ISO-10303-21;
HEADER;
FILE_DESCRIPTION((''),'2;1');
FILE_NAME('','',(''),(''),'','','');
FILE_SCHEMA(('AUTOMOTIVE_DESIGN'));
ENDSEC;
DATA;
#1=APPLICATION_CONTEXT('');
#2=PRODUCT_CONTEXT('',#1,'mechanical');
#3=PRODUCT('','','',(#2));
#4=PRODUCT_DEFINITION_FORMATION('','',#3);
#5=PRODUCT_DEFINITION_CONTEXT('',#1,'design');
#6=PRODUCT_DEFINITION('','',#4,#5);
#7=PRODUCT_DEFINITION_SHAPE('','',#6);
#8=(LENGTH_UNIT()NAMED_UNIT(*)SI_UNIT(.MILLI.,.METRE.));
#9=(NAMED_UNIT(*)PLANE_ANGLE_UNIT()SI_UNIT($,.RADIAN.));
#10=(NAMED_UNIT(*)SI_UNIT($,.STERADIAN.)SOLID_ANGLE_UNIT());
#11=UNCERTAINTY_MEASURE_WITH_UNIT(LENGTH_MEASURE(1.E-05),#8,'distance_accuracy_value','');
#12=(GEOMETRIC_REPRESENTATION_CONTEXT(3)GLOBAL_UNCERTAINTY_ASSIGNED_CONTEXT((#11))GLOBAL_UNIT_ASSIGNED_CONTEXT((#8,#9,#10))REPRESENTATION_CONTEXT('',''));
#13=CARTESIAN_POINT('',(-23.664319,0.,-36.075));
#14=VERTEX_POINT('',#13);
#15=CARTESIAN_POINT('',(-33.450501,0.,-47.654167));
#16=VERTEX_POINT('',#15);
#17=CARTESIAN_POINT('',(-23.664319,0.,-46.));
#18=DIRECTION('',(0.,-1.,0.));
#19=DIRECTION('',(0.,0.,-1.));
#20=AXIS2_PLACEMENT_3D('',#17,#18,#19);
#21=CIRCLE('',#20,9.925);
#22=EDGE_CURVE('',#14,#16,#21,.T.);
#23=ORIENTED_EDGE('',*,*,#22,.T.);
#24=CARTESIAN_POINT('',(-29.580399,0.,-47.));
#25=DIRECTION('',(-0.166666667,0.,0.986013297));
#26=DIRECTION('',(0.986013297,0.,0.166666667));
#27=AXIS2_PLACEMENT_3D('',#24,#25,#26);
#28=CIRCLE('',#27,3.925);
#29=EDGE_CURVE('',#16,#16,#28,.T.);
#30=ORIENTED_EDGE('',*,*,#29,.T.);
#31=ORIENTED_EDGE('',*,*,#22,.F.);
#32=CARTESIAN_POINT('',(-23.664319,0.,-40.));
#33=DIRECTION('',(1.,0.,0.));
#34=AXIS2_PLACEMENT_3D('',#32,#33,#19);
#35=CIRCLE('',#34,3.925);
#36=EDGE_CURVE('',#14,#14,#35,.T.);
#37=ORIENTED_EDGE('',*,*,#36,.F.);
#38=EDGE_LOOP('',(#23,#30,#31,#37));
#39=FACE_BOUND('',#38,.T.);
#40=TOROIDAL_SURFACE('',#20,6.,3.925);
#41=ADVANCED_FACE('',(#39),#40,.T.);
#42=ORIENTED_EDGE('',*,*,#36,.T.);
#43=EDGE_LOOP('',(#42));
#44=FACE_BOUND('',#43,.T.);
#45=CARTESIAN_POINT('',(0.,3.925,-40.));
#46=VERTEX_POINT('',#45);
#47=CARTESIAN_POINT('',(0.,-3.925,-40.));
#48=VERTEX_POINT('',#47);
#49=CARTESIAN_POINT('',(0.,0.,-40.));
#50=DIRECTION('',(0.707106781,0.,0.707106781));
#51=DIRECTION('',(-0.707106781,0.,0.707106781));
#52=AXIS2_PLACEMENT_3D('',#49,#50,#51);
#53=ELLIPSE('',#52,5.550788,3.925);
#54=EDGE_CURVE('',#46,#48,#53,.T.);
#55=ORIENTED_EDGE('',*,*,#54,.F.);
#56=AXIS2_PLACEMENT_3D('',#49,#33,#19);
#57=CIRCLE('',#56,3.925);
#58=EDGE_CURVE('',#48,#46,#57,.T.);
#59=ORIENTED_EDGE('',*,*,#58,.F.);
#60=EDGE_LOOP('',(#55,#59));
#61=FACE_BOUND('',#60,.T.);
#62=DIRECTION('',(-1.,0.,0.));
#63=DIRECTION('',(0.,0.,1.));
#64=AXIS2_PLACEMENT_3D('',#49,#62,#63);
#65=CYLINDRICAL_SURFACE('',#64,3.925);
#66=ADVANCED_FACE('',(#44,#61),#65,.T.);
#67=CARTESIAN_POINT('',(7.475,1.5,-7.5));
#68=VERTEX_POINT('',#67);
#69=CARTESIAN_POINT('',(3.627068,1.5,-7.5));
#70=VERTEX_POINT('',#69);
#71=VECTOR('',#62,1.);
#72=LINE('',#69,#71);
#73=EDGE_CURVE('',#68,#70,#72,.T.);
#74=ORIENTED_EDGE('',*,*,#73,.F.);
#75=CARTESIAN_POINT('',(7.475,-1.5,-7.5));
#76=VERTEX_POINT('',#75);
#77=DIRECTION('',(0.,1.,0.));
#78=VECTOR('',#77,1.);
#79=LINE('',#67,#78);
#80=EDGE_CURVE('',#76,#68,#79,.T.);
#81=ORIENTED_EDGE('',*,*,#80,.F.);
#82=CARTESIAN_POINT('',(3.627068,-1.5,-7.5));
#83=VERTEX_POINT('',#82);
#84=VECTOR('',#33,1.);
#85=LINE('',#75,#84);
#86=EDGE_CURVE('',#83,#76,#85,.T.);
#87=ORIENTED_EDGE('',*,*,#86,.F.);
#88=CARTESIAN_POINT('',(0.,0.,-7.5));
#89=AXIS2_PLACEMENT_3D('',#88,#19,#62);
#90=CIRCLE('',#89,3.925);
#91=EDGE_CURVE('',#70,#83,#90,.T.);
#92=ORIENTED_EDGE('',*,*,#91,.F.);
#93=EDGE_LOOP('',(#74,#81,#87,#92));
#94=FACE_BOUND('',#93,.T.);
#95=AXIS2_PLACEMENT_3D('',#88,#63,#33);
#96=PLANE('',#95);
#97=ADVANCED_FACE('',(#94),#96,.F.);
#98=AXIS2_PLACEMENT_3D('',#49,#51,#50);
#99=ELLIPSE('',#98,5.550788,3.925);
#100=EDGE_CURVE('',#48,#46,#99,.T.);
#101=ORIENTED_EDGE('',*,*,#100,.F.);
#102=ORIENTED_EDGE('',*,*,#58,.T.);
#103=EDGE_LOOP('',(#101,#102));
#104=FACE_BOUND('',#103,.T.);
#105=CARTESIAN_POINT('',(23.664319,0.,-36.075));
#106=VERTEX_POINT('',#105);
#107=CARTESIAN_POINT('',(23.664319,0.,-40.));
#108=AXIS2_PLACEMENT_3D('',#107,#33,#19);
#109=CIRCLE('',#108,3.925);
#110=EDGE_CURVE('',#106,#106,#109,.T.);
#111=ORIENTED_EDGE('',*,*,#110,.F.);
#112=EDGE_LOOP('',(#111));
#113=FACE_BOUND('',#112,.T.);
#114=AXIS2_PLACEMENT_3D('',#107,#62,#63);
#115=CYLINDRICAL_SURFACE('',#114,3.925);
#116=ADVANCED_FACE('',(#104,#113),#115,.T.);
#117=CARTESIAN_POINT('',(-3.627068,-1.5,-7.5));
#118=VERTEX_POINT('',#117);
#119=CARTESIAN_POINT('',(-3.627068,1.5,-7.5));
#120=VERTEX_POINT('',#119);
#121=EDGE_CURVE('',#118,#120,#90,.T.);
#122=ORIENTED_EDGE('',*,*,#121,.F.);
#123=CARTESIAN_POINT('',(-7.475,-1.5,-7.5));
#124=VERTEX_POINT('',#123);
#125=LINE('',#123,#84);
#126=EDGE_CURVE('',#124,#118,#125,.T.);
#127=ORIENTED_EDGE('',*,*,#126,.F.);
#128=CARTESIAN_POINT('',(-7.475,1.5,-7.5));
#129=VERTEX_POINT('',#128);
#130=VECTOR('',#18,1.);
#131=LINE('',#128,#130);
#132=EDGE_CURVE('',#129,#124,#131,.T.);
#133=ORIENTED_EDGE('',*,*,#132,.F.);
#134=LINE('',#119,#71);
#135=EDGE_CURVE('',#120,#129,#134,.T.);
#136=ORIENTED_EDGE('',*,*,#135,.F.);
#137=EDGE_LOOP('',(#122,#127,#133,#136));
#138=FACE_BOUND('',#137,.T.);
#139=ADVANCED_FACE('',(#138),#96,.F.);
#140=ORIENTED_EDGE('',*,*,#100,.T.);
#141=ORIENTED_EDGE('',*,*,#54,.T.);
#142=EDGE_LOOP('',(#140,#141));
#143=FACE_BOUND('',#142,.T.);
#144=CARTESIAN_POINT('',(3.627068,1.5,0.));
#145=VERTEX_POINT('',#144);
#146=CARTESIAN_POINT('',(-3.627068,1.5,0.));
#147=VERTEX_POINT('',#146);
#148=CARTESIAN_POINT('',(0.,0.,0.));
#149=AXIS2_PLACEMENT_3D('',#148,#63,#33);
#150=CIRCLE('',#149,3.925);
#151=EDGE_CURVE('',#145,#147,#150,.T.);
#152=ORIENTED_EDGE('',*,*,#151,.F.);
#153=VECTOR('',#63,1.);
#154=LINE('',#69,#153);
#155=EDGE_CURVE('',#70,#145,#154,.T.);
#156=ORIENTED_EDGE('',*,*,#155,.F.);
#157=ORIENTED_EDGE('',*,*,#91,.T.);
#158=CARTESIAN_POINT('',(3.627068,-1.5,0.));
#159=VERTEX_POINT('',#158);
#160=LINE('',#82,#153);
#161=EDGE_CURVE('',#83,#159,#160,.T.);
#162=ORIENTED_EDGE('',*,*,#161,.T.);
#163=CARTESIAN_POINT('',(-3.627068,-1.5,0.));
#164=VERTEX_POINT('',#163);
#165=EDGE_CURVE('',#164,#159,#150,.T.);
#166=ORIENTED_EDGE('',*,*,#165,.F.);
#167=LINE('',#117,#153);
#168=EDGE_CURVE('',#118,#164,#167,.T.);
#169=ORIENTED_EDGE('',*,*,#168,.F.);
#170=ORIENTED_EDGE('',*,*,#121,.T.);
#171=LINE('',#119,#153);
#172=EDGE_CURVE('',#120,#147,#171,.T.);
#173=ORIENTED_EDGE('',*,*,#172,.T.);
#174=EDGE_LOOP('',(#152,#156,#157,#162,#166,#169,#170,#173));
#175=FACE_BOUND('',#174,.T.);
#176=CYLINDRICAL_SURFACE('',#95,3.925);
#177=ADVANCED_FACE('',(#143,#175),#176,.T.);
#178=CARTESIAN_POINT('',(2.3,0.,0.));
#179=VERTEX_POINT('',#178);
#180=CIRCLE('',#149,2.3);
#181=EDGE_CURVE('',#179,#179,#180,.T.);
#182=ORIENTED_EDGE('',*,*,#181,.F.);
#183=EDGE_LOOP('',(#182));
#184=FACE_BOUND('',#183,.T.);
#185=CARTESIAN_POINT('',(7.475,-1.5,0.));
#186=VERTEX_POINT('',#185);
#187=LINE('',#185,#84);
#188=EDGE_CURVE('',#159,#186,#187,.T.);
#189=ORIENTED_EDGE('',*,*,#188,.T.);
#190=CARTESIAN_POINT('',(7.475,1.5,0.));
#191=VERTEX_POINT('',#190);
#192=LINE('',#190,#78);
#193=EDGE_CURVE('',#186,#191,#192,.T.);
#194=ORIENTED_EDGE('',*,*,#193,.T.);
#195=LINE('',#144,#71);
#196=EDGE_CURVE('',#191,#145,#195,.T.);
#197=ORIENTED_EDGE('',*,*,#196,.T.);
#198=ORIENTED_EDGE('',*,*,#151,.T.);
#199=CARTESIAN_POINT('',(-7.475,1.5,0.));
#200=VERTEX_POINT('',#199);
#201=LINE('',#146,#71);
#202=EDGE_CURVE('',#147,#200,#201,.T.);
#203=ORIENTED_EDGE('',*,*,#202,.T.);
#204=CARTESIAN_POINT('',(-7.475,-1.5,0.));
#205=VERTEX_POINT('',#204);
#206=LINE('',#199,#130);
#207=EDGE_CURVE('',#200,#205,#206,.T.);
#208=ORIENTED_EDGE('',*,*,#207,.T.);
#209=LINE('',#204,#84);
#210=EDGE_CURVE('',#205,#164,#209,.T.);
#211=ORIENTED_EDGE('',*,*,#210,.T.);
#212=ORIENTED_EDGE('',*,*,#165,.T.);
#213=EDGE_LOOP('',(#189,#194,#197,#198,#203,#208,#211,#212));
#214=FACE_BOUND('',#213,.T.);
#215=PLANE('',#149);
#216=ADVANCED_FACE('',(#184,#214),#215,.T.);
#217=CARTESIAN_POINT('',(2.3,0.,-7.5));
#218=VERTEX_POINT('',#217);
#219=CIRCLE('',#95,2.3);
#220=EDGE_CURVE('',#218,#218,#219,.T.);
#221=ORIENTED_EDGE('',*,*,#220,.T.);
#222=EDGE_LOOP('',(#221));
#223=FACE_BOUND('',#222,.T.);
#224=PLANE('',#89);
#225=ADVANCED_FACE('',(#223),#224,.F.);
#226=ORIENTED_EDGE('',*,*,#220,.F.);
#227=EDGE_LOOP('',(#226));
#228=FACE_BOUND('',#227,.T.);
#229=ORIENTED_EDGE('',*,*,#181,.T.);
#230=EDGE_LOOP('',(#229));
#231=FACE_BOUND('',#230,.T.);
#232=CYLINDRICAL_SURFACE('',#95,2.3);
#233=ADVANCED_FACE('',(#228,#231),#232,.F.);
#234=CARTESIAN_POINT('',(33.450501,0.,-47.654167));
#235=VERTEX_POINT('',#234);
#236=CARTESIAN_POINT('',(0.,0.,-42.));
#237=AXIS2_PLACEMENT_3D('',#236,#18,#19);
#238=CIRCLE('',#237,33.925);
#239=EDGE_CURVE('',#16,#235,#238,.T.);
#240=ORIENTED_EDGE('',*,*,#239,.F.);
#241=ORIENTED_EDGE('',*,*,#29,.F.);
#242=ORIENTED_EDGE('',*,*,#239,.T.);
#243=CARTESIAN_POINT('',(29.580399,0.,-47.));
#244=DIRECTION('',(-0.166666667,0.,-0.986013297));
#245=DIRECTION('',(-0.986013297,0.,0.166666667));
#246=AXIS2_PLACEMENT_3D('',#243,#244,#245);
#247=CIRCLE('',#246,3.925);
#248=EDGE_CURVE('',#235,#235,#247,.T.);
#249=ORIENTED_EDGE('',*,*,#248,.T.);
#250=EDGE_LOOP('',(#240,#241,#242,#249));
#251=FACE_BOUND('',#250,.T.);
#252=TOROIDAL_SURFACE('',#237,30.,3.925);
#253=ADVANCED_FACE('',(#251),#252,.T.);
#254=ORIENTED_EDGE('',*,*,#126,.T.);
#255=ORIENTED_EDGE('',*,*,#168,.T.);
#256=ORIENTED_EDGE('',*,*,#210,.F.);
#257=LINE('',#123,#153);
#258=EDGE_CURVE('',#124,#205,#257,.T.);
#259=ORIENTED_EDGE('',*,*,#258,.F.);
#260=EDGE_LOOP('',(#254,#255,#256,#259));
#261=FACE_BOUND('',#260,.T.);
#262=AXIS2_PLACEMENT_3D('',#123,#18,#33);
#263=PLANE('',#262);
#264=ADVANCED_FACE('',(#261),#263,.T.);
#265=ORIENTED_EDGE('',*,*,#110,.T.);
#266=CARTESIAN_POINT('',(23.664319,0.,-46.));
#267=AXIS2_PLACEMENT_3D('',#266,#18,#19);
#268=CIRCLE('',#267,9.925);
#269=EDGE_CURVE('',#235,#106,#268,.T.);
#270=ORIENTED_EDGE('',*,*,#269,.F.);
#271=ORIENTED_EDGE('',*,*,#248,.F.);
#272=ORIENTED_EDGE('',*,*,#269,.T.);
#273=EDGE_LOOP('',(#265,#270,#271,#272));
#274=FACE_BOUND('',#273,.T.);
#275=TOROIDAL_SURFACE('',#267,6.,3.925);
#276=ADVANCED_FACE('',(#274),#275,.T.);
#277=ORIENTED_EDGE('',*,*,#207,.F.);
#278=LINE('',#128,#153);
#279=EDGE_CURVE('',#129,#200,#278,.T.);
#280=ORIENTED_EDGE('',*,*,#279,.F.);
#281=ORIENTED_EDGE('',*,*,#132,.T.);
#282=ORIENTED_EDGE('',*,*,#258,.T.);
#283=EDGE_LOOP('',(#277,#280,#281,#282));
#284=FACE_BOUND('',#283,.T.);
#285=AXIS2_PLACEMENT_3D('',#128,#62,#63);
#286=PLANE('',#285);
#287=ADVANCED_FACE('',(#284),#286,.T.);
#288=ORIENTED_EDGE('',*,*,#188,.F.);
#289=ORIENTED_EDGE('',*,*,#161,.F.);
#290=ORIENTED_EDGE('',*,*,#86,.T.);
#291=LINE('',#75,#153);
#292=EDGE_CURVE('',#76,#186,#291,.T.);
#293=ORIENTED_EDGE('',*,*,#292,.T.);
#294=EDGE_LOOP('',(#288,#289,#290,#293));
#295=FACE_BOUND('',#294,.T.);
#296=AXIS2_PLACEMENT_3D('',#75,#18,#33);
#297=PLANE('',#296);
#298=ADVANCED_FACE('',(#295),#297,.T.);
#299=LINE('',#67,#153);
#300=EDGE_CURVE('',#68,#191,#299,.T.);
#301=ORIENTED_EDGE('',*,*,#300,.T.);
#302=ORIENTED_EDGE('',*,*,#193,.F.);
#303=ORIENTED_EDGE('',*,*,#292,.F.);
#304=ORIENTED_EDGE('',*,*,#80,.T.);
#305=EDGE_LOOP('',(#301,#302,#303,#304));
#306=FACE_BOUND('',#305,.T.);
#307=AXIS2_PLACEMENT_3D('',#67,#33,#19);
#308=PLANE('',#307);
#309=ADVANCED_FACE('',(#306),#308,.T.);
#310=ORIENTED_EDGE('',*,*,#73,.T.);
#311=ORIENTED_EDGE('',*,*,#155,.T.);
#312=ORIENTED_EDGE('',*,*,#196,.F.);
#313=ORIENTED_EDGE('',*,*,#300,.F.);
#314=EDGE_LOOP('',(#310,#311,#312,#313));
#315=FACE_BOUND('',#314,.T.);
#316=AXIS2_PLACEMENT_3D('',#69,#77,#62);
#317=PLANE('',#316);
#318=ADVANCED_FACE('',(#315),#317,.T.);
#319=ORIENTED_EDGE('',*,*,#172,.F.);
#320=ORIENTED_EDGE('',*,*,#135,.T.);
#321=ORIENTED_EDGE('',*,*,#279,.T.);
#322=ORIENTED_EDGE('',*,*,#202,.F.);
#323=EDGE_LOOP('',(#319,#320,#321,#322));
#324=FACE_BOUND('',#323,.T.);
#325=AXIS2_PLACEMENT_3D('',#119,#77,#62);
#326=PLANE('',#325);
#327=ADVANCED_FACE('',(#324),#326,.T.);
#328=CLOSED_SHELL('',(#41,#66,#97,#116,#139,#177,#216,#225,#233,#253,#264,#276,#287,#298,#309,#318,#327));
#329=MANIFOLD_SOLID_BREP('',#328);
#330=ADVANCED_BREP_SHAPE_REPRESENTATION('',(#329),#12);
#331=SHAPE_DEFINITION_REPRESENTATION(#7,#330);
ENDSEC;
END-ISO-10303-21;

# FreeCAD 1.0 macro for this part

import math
import FreeCAD as App
import Part
import Sketcher

V = App.Vector
Q = App.Units.Quantity

doc = App.newDocument("Part")
params = doc.addObject("Spreadsheet::Sheet", "Params")
for row, (alias, value) in enumerate([
    ("sketch1_diameter", "4.6 mm"),
    ("sketch1_height", "3 mm"),
    ("pad1_length", "7.5 mm"),
    ("sketch2_diameter", "7.85 mm"),
    ("pad2_length", "32.5 mm"),
    ("sketch3_diameter", "7.85 mm"),
    ("sketch4_radius", "6 mm"),
    ("sketch4_radius2", "30 mm"),
], start=1):
    params.set(f"A{row}", alias)
    params.set(f"B{row}", "=" + value)
    params.setAlias(f"B{row}", alias)

body = doc.addObject("PartDesign::Body", "Body")

sketch1 = body.newObject("Sketcher::SketchObject", "Sketch")
sketch1.AttachmentSupport = (doc.getObject("XY_Plane"), [""])
sketch1.MapMode = "FlatFace"
sketch1.addGeometry(Part.LineSegment(V(7.5, 1.5, 0), V(3.6, 1.5, 0)), False)
sketch1.addGeometry(Part.ArcOfCircle(Part.Circle(V(0, 0, 0), V(0, 0, 1), 3.9), math.radians(22), math.radians(158)), False)
sketch1.addGeometry(Part.LineSegment(V(-3.6, 1.5, 0), V(-7.5, 1.5, 0)), False)
sketch1.addGeometry(Part.LineSegment(V(-7.5, 1.5, 0), V(-7.5, -1.5, 0)), False)
sketch1.addGeometry(Part.LineSegment(V(-7.5, -1.5, 0), V(-3.6, -1.5, 0)), False)
sketch1.addGeometry(Part.ArcOfCircle(Part.Circle(V(0, 0, 0), V(0, 0, 1), 3.9), math.radians(-158), math.radians(-22)), False)
sketch1.addGeometry(Part.LineSegment(V(3.6, -1.5, 0), V(7.5, -1.5, 0)), False)
sketch1.addGeometry(Part.LineSegment(V(7.5, -1.5, 0), V(7.5, 1.5, 0)), False)
sketch1.addGeometry(Part.Circle(V(0, 0, 0), V(0, 0, 1), 2.3), False)
sketch1.addConstraint(Sketcher.Constraint("Coincident", 0, 2, 1, 1))
sketch1.addConstraint(Sketcher.Constraint("Coincident", 1, 2, 2, 1))
sketch1.addConstraint(Sketcher.Constraint("Coincident", 2, 2, 3, 1))
sketch1.addConstraint(Sketcher.Constraint("Coincident", 3, 2, 4, 1))
sketch1.addConstraint(Sketcher.Constraint("Coincident", 4, 2, 5, 1))
sketch1.addConstraint(Sketcher.Constraint("Coincident", 5, 2, 6, 1))
sketch1.addConstraint(Sketcher.Constraint("Coincident", 6, 2, 7, 1))
sketch1.addConstraint(Sketcher.Constraint("Coincident", 7, 2, 0, 1))
sketch1.addConstraint(Sketcher.Constraint("Horizontal", 0))
sketch1.addConstraint(Sketcher.Constraint("Horizontal", 2))
sketch1.addConstraint(Sketcher.Constraint("Vertical", 3))
sketch1.addConstraint(Sketcher.Constraint("Horizontal", 4))
sketch1.addConstraint(Sketcher.Constraint("Horizontal", 6))
sketch1.addConstraint(Sketcher.Constraint("Vertical", 7))
sketch1.addConstraint(Sketcher.Constraint("Coincident", 1, 3, -1, 1))
sketch1.addConstraint(Sketcher.Constraint("Coincident", 5, 3, -1, 1))
sketch1.addConstraint(Sketcher.Constraint("Coincident", 8, 3, -1, 1))
sketch1.addConstraint(Sketcher.Constraint("Equal", 1, 5))
sketch1.addConstraint(Sketcher.Constraint("Symmetric", 2, 2, 6, 2, -1, 1))
sketch1.addConstraint(Sketcher.Constraint("Horizontal", 0, 2, 1, 2))
sketch1.addConstraint(Sketcher.Constraint("Horizontal", 4, 2, 5, 2))
sketch1.addConstraint(Sketcher.Constraint("Diameter", 8, Q("4.6 mm")))
sketch1.addConstraint(Sketcher.Constraint("DistanceY", 3, 2, 3, 1, Q("3 mm")))
sketch1.addConstraint(Sketcher.Constraint("Radius", 1, Q("3.925 mm")))
sketch1.addConstraint(Sketcher.Constraint("DistanceX", 2, 2, -1, 1, Q("7.475 mm")))
sketch1.setExpression("Constraints[21]", "Params.sketch1_diameter")
sketch1.setExpression("Constraints[22]", "Params.sketch1_height")
pad1 = body.newObject("PartDesign::Pad", "Pad")
pad1.Profile = sketch1
pad1.setExpression("Length", "Params.pad1_length")
pad1.Reversed = True

sketch2 = body.newObject("Sketcher::SketchObject", "Sketch001")
sketch2.AttachmentSupport = (doc.getObject("XY_Plane"), [""])
sketch2.MapMode = "FlatFace"
sketch2.AttachmentOffset = App.Placement(V(0, 0, -7.5), App.Rotation())
sketch2.addGeometry(Part.Circle(V(0, 0, 0), V(0, 0, 1), 3.9), False)
sketch2.addConstraint(Sketcher.Constraint("Coincident", 0, 3, -1, 1))
sketch2.addConstraint(Sketcher.Constraint("Diameter", 0, Q("7.85 mm")))
sketch2.setExpression("Constraints[1]", "Params.sketch2_diameter")
pad2 = body.newObject("PartDesign::Pad", "Pad001")
pad2.Profile = sketch2
pad2.setExpression("Length", "Params.pad2_length")
pad2.Reversed = True

sketch3 = body.newObject("Sketcher::SketchObject", "Sketch002")
sketch3.AttachmentSupport = (doc.getObject("YZ_Plane"), [""])
sketch3.MapMode = "FlatFace"
sketch3.addGeometry(Part.Circle(V(0, -40, 0), V(0, 0, 1), 3.9), False)
sketch3.addConstraint(Sketcher.Constraint("PointOnObject", 0, 3, -2))
sketch3.addConstraint(Sketcher.Constraint("Diameter", 0, Q("7.85 mm")))
sketch3.addConstraint(Sketcher.Constraint("DistanceY", 0, 3, -1, 1, Q("40 mm")))
sketch3.setExpression("Constraints[1]", "Params.sketch3_diameter")

sketch4 = body.newObject("Sketcher::SketchObject", "Sketch003")
sketch4.AttachmentSupport = (doc.getObject("XZ_Plane"), [""])
sketch4.MapMode = "FlatFace"
sketch4.addGeometry(Part.ArcOfCircle(Part.Circle(V(23.664319, -46, 0), V(0, 0, 1), 6), math.radians(-9.594068), math.radians(90)), False)
sketch4.addGeometry(Part.ArcOfCircle(Part.Circle(V(0, -42, 0), V(0, 0, 1), 30), math.radians(-170.405932), math.radians(-9.594068)), False)
sketch4.addGeometry(Part.ArcOfCircle(Part.Circle(V(-23.664319, -46, 0), V(0, 0, 1), 6), math.radians(90), math.radians(189.594068)), False)
sketch4.addGeometry(Part.LineSegment(V(-23.664319, -40, 0), V(23.664319, -40, 0)), False)
sketch4.addConstraint(Sketcher.Constraint("Tangent", 0, 1, 1, 2))
sketch4.addConstraint(Sketcher.Constraint("Tangent", 1, 1, 2, 2))
sketch4.addConstraint(Sketcher.Constraint("Tangent", 2, 1, 3, 1))
sketch4.addConstraint(Sketcher.Constraint("Tangent", 3, 2, 0, 2))
sketch4.addConstraint(Sketcher.Constraint("Horizontal", 3))
sketch4.addConstraint(Sketcher.Constraint("Equal", 0, 2))
sketch4.addConstraint(Sketcher.Constraint("PointOnObject", 1, 3, -2))
sketch4.addConstraint(Sketcher.Constraint("Radius", 0, Q("6 mm")))
sketch4.addConstraint(Sketcher.Constraint("Radius", 1, Q("30 mm")))
sketch4.addConstraint(Sketcher.Constraint("DistanceY", 0, 3, -1, 1, Q("46 mm")))
sketch4.addConstraint(Sketcher.Constraint("DistanceY", 1, 3, -1, 1, Q("42 mm")))
sketch4.setExpression("Constraints[7]", "Params.sketch4_radius")
sketch4.setExpression("Constraints[8]", "Params.sketch4_radius2")
doc.recompute()

additivepipe = body.newObject("PartDesign::AdditivePipe", "AdditivePipe")
additivepipe.Profile = sketch3
additivepipe.Spine = (sketch4, ["Edge1", "Edge2", "Edge3", "Edge4"])

doc.recompute()
